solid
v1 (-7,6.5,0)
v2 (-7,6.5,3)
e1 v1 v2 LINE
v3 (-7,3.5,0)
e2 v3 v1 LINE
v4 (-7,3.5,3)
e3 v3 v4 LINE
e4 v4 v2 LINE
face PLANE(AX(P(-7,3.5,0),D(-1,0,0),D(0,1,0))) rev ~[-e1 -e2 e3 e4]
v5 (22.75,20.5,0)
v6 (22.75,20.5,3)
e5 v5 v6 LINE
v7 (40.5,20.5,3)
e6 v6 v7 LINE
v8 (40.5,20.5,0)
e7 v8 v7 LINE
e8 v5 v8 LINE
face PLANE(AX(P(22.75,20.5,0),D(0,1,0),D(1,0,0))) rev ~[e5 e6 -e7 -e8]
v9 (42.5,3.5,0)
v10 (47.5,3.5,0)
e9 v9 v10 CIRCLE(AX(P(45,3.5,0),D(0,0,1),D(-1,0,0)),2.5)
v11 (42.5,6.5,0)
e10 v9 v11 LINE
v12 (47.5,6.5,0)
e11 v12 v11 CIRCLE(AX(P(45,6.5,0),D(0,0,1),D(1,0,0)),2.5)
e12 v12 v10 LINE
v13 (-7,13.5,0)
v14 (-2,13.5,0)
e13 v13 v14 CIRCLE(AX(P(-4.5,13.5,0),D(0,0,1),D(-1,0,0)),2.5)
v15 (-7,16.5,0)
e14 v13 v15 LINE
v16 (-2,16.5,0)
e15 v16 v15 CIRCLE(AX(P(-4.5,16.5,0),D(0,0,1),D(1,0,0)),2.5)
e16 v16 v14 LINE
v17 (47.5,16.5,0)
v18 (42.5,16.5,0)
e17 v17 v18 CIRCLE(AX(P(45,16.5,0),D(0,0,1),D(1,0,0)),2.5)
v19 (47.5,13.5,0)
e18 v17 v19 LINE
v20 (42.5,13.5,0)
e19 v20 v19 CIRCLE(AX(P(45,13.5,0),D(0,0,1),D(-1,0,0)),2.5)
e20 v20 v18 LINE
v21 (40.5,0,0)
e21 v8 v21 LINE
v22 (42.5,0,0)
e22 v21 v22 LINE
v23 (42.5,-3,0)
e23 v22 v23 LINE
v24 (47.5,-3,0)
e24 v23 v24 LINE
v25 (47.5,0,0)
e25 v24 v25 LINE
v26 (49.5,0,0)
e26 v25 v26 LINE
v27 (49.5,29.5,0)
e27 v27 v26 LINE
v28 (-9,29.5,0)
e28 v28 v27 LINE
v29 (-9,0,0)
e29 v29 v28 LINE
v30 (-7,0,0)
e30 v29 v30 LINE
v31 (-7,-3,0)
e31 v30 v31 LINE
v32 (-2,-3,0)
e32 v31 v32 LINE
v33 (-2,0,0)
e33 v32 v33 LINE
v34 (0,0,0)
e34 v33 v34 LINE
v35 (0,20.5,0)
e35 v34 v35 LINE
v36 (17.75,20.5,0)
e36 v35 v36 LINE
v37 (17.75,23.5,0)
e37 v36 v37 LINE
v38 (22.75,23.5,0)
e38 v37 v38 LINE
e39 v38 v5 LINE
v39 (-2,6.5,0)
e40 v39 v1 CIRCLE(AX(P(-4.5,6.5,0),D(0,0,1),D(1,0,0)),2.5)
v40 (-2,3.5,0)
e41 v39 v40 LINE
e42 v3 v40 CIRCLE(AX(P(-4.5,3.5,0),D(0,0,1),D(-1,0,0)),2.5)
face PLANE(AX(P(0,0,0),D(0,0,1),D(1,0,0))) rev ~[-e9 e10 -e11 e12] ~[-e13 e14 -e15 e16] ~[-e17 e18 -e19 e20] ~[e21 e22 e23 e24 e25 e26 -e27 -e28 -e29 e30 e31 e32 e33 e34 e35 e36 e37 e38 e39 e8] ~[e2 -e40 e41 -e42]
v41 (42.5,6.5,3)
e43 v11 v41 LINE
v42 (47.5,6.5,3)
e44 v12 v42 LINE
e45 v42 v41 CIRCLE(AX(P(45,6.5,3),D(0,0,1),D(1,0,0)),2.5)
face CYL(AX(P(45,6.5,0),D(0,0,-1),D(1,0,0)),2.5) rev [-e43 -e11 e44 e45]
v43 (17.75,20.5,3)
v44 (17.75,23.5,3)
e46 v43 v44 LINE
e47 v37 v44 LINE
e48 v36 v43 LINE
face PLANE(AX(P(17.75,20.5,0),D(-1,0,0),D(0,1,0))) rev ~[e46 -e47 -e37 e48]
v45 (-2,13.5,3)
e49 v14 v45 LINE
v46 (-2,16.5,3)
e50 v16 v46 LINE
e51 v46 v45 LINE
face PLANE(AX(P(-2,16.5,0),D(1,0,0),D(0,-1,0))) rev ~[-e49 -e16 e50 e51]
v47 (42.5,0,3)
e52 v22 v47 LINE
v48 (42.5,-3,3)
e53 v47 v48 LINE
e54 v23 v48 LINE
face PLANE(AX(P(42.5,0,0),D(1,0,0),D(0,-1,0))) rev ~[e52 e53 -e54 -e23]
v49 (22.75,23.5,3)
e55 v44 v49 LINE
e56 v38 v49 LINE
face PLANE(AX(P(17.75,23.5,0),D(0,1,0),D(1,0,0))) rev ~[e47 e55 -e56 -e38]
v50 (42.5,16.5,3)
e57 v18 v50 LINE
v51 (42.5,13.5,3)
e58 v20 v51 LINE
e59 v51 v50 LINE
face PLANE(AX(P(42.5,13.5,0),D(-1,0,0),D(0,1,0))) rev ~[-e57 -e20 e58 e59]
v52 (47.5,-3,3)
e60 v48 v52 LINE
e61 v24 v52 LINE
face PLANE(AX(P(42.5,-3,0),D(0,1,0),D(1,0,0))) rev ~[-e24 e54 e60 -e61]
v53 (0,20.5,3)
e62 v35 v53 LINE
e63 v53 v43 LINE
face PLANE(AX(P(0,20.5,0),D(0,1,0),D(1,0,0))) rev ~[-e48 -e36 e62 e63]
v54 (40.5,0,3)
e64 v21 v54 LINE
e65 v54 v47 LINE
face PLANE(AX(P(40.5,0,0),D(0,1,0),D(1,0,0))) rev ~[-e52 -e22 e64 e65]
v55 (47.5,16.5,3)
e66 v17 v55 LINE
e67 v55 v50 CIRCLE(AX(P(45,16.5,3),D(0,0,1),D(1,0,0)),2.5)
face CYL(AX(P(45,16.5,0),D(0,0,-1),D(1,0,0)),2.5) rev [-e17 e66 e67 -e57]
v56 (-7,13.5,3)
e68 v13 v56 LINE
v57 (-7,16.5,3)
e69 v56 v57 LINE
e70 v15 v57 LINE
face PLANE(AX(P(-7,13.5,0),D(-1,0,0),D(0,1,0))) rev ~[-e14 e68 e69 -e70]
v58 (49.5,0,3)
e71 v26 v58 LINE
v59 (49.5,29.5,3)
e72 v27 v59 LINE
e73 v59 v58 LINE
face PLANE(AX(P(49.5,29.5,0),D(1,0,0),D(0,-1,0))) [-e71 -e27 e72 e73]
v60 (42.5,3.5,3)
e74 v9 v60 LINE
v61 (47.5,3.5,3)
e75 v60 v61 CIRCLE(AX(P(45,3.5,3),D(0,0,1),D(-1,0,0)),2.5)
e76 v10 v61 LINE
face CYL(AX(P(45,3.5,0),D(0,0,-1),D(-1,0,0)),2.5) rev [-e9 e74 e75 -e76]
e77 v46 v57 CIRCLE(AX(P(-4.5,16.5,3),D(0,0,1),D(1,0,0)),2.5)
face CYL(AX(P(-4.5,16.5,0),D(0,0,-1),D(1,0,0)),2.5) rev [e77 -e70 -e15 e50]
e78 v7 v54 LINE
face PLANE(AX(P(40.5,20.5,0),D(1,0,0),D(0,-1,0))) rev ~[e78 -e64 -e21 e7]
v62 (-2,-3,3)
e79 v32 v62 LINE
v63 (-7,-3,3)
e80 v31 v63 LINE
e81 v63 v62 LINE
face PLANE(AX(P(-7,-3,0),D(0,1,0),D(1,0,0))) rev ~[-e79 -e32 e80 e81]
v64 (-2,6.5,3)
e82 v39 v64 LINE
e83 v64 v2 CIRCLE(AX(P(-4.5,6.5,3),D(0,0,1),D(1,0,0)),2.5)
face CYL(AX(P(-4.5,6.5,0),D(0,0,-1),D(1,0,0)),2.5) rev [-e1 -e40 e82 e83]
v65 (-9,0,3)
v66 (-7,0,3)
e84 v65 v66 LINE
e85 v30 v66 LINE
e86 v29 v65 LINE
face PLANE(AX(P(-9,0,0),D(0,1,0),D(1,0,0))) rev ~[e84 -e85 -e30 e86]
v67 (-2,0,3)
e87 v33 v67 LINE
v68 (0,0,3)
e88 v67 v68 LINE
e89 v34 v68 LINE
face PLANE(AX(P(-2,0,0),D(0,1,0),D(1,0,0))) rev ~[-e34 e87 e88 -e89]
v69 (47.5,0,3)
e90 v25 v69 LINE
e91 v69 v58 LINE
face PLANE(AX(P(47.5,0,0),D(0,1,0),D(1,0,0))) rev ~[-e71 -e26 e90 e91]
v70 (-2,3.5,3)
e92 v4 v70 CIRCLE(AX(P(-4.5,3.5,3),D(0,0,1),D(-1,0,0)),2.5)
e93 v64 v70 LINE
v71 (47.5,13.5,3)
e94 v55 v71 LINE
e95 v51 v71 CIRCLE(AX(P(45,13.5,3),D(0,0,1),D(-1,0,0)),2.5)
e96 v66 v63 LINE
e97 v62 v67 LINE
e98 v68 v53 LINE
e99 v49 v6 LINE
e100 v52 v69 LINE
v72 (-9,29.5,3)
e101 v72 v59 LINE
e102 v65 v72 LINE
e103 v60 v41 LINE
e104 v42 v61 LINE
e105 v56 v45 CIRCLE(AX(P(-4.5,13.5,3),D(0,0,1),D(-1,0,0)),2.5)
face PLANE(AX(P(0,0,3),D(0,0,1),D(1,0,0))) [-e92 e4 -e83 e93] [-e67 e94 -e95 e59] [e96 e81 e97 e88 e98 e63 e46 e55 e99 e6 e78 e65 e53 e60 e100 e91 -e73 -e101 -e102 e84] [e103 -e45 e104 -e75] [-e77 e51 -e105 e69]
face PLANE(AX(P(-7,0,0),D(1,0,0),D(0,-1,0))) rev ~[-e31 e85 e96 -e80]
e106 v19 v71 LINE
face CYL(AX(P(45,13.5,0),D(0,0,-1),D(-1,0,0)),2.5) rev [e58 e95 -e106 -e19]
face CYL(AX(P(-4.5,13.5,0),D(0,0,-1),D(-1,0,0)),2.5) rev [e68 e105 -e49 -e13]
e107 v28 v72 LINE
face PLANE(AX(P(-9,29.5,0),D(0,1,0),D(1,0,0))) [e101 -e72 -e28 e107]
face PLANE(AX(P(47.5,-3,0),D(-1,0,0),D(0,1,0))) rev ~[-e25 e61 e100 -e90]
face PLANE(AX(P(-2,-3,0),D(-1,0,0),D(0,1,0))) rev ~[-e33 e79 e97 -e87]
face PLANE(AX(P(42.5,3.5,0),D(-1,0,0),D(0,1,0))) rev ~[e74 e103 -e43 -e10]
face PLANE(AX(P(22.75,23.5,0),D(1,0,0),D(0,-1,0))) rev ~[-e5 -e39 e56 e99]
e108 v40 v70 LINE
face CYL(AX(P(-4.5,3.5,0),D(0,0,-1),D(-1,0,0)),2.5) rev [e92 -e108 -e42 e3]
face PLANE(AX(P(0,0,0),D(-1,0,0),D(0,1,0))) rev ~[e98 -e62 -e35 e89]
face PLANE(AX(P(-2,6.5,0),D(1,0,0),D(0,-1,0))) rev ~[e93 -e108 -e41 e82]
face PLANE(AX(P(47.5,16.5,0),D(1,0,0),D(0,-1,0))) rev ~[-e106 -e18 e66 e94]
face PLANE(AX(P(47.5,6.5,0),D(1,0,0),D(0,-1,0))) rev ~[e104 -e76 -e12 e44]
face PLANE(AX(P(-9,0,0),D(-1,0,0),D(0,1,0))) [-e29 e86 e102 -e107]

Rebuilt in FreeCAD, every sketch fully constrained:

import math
import FreeCAD as App
import Part
import Sketcher

doc = App.newDocument("Part")
body = doc.addObject("PartDesign::Body", "Body")

sketch1 = body.newObject("Sketcher::SketchObject", "Sketch")
sketch1.AttachmentSupport = (doc.getObject("XY_Plane"), [""])
sketch1.MapMode = "FlatFace"
sketch1.addGeometry([
    Part.LineSegment(App.Vector(-9, 29.5, 0), App.Vector(-9, 0, 0)),
    Part.LineSegment(App.Vector(-9, 0, 0), App.Vector(-7, 0, 0)),
    Part.LineSegment(App.Vector(-7, 0, 0), App.Vector(-7, -3, 0)),
    Part.LineSegment(App.Vector(-7, -3, 0), App.Vector(-2, -3, 0)),
    Part.LineSegment(App.Vector(-2, -3, 0), App.Vector(-2, 0, 0)),
    Part.LineSegment(App.Vector(-2, 0, 0), App.Vector(0, 0, 0)),
    Part.LineSegment(App.Vector(0, 0, 0), App.Vector(0, 20.5, 0)),
    Part.LineSegment(App.Vector(0, 20.5, 0), App.Vector(17.8, 20.5, 0)),
    Part.LineSegment(App.Vector(17.8, 20.5, 0), App.Vector(17.8, 23.5, 0)),
    Part.LineSegment(App.Vector(17.8, 23.5, 0), App.Vector(22.8, 23.5, 0)),
    Part.LineSegment(App.Vector(22.8, 23.5, 0), App.Vector(22.8, 20.5, 0)),
    Part.LineSegment(App.Vector(22.8, 20.5, 0), App.Vector(40.5, 20.5, 0)),
    Part.LineSegment(App.Vector(40.5, 20.5, 0), App.Vector(40.5, 0, 0)),
    Part.LineSegment(App.Vector(40.5, 0, 0), App.Vector(42.5, 0, 0)),
    Part.LineSegment(App.Vector(42.5, 0, 0), App.Vector(42.5, -3, 0)),
    Part.LineSegment(App.Vector(42.5, -3, 0), App.Vector(47.5, -3, 0)),
    Part.LineSegment(App.Vector(47.5, -3, 0), App.Vector(47.5, 0, 0)),
    Part.LineSegment(App.Vector(47.5, 0, 0), App.Vector(49.5, 0, 0)),
    Part.LineSegment(App.Vector(49.5, 0, 0), App.Vector(49.5, 29.5, 0)),
    Part.LineSegment(App.Vector(49.5, 29.5, 0), App.Vector(-9, 29.5, 0)),
    Part.LineSegment(App.Vector(-7, 3.5, 0), App.Vector(-7, 6.5, 0)),
    Part.ArcOfCircle(Part.Circle(App.Vector(-4.5, 6.5, 0), App.Vector(0, 0, 1), 2.5), math.radians(0), math.radians(180)),
    Part.LineSegment(App.Vector(-2, 6.5, 0), App.Vector(-2, 3.5, 0)),
    Part.ArcOfCircle(Part.Circle(App.Vector(-4.5, 3.5, 0), App.Vector(0, 0, 1), 2.5), math.radians(180), math.radians(360)),
    Part.ArcOfCircle(Part.Circle(App.Vector(45, 6.5, 0), App.Vector(0, 0, 1), 2.5), math.radians(0), math.radians(180)),
    Part.LineSegment(App.Vector(47.5, 6.5, 0), App.Vector(47.5, 3.5, 0)),
    Part.ArcOfCircle(Part.Circle(App.Vector(45, 3.5, 0), App.Vector(0, 0, 1), 2.5), math.radians(180), math.radians(360)),
    Part.LineSegment(App.Vector(42.5, 3.5, 0), App.Vector(42.5, 6.5, 0)),
    Part.LineSegment(App.Vector(-7, 13.5, 0), App.Vector(-7, 16.5, 0)),
    Part.ArcOfCircle(Part.Circle(App.Vector(-4.5, 16.5, 0), App.Vector(0, 0, 1), 2.5), math.radians(0), math.radians(180)),
    Part.LineSegment(App.Vector(-2, 16.5, 0), App.Vector(-2, 13.5, 0)),
    Part.ArcOfCircle(Part.Circle(App.Vector(-4.5, 13.5, 0), App.Vector(0, 0, 1), 2.5), math.radians(180), math.radians(360)),
    Part.LineSegment(App.Vector(42.5, 13.5, 0), App.Vector(42.5, 16.5, 0)),
    Part.ArcOfCircle(Part.Circle(App.Vector(45, 16.5, 0), App.Vector(0, 0, 1), 2.5), math.radians(0), math.radians(180)),
    Part.LineSegment(App.Vector(47.5, 16.5, 0), App.Vector(47.5, 13.5, 0)),
    Part.ArcOfCircle(Part.Circle(App.Vector(45, 13.5, 0), App.Vector(0, 0, 1), 2.5), math.radians(180), math.radians(360)),
], False)
sketch1.addConstraint([
    Sketcher.Constraint("Coincident", 0, 2, 1, 1),
    Sketcher.Constraint("Coincident", 1, 2, 2, 1),
    Sketcher.Constraint("Coincident", 2, 2, 3, 1),
    Sketcher.Constraint("Coincident", 3, 2, 4, 1),
    Sketcher.Constraint("Coincident", 4, 2, 5, 1),
    Sketcher.Constraint("Coincident", 5, 2, 6, 1),
    Sketcher.Constraint("Coincident", 6, 2, 7, 1),
    Sketcher.Constraint("Coincident", 7, 2, 8, 1),
    Sketcher.Constraint("Coincident", 8, 2, 9, 1),
    Sketcher.Constraint("Coincident", 9, 2, 10, 1),
    Sketcher.Constraint("Coincident", 10, 2, 11, 1),
    Sketcher.Constraint("Coincident", 11, 2, 12, 1),
    Sketcher.Constraint("Coincident", 12, 2, 13, 1),
    Sketcher.Constraint("Coincident", 13, 2, 14, 1),
    Sketcher.Constraint("Coincident", 14, 2, 15, 1),
    Sketcher.Constraint("Coincident", 15, 2, 16, 1),
    Sketcher.Constraint("Coincident", 16, 2, 17, 1),
    Sketcher.Constraint("Coincident", 17, 2, 18, 1),
    Sketcher.Constraint("Coincident", 18, 2, 19, 1),
    Sketcher.Constraint("Coincident", 19, 2, 0, 1),
    Sketcher.Constraint("Tangent", 20, 2, 21, 2),
    Sketcher.Constraint("Tangent", 21, 1, 22, 1),
    Sketcher.Constraint("Tangent", 22, 2, 23, 2),
    Sketcher.Constraint("Tangent", 23, 1, 20, 1),
    Sketcher.Constraint("Tangent", 24, 1, 25, 1),
    Sketcher.Constraint("Tangent", 25, 2, 26, 2),
    Sketcher.Constraint("Tangent", 26, 1, 27, 1),
    Sketcher.Constraint("Tangent", 27, 2, 24, 2),
    Sketcher.Constraint("Tangent", 28, 2, 29, 2),
    Sketcher.Constraint("Tangent", 29, 1, 30, 1),
    Sketcher.Constraint("Tangent", 30, 2, 31, 2),
    Sketcher.Constraint("Tangent", 31, 1, 28, 1),
    Sketcher.Constraint("Tangent", 32, 2, 33, 2),
    Sketcher.Constraint("Tangent", 33, 1, 34, 1),
    Sketcher.Constraint("Tangent", 34, 2, 35, 2),
    Sketcher.Constraint("Tangent", 35, 1, 32, 1),
    Sketcher.Constraint("Vertical", 0),
    Sketcher.Constraint("Horizontal", 1),
    Sketcher.Constraint("Vertical", 2),
    Sketcher.Constraint("Horizontal", 3),
    Sketcher.Constraint("Vertical", 4),
    Sketcher.Constraint("Horizontal", 5),
    Sketcher.Constraint("Vertical", 6),
    Sketcher.Constraint("Horizontal", 7),
    Sketcher.Constraint("Vertical", 8),
    Sketcher.Constraint("Horizontal", 9),
    Sketcher.Constraint("Vertical", 10),
    Sketcher.Constraint("Horizontal", 11),
    Sketcher.Constraint("Vertical", 12),
    Sketcher.Constraint("Horizontal", 13),
    Sketcher.Constraint("Vertical", 14),
    Sketcher.Constraint("Horizontal", 15),
    Sketcher.Constraint("Vertical", 16),
    Sketcher.Constraint("Horizontal", 17),
    Sketcher.Constraint("Vertical", 18),
    Sketcher.Constraint("Horizontal", 19),
    Sketcher.Constraint("Vertical", 20),
    Sketcher.Constraint("Vertical", 22),
    Sketcher.Constraint("Vertical", 25),
    Sketcher.Constraint("Vertical", 27),
    Sketcher.Constraint("Vertical", 28),
    Sketcher.Constraint("Vertical", 30),
    Sketcher.Constraint("Vertical", 32),
    Sketcher.Constraint("Vertical", 34),
    Sketcher.Constraint("Coincident", 5, 2, -1, 1),
    Sketcher.Constraint("Equal", 23, 24),
    Sketcher.Constraint("Equal", 26, 29),
    Sketcher.Constraint("Equal", 31, 33),
    Sketcher.Constraint("PointOnObject", 0, 2, -1),
    Sketcher.Constraint("PointOnObject", 12, 2, -1),
    Sketcher.Constraint("PointOnObject", 16, 2, -1),
    Sketcher.Constraint("Horizontal", 21, 3, 24, 3),
    Sketcher.Constraint("Horizontal", 23, 3, 26, 3),
    Sketcher.Constraint("Horizontal", 29, 3, 33, 3),
    Sketcher.Constraint("Horizontal", 31, 3, 35, 3),
    Sketcher.Constraint("Horizontal", 7, 2, 10, 2),
    Sketcher.Constraint("Horizontal", 3, 2, 14, 2),
    Sketcher.Constraint("Vertical", 23, 3, 29, 3),
    Sketcher.Constraint("Vertical", 26, 3, 33, 3),
    Sketcher.Constraint("Vertical", 2, 2, 20, 2),
    Sketcher.Constraint("Vertical", 4, 2, 21, 1),
    Sketcher.Constraint("Vertical", 16, 2, 24, 1),
    Sketcher.Constraint("Vertical", 14, 2, 26, 1),
    Sketcher.Constraint("Equal", 1, 5),
    Sketcher.Constraint("Equal", 3, 9),
    Sketcher.Constraint("Equal", 7, 11),
    Sketcher.Constraint("Equal", 5, 13),
    Sketcher.Constraint("Equal", 13, 17),
    Sketcher.Constraint("Equal", 4, 8),
    Sketcher.Constraint("Equal", 16, 20),
    Sketcher.Constraint("Equal", 27, 28),
    Sketcher.Constraint("Radius", 21, 2.5),
    Sketcher.Constraint("DistanceX", 1, 1, 1, 2, 2.0),
    Sketcher.Constraint("DistanceY", 2, 2, 2, 1, 3.0),
    Sketcher.Constraint("DistanceY", 6, 1, 6, 2, 20.5),
    Sketcher.Constraint("DistanceY", 21, 3, 29, 3, 10.0),
    Sketcher.Constraint("DistanceY", 31, 3, 8, 2, 10.0),
    Sketcher.Constraint("DistanceY", 11, 2, 18, 2, 9.0),
    Sketcher.Constraint("DistanceX", -1, 1, 11, 2, 40.5),
])
pad1 = body.newObject("PartDesign::Pad", "Pad")
pad1.Profile = sketch1
pad1.Length = 3

doc.recompute()
